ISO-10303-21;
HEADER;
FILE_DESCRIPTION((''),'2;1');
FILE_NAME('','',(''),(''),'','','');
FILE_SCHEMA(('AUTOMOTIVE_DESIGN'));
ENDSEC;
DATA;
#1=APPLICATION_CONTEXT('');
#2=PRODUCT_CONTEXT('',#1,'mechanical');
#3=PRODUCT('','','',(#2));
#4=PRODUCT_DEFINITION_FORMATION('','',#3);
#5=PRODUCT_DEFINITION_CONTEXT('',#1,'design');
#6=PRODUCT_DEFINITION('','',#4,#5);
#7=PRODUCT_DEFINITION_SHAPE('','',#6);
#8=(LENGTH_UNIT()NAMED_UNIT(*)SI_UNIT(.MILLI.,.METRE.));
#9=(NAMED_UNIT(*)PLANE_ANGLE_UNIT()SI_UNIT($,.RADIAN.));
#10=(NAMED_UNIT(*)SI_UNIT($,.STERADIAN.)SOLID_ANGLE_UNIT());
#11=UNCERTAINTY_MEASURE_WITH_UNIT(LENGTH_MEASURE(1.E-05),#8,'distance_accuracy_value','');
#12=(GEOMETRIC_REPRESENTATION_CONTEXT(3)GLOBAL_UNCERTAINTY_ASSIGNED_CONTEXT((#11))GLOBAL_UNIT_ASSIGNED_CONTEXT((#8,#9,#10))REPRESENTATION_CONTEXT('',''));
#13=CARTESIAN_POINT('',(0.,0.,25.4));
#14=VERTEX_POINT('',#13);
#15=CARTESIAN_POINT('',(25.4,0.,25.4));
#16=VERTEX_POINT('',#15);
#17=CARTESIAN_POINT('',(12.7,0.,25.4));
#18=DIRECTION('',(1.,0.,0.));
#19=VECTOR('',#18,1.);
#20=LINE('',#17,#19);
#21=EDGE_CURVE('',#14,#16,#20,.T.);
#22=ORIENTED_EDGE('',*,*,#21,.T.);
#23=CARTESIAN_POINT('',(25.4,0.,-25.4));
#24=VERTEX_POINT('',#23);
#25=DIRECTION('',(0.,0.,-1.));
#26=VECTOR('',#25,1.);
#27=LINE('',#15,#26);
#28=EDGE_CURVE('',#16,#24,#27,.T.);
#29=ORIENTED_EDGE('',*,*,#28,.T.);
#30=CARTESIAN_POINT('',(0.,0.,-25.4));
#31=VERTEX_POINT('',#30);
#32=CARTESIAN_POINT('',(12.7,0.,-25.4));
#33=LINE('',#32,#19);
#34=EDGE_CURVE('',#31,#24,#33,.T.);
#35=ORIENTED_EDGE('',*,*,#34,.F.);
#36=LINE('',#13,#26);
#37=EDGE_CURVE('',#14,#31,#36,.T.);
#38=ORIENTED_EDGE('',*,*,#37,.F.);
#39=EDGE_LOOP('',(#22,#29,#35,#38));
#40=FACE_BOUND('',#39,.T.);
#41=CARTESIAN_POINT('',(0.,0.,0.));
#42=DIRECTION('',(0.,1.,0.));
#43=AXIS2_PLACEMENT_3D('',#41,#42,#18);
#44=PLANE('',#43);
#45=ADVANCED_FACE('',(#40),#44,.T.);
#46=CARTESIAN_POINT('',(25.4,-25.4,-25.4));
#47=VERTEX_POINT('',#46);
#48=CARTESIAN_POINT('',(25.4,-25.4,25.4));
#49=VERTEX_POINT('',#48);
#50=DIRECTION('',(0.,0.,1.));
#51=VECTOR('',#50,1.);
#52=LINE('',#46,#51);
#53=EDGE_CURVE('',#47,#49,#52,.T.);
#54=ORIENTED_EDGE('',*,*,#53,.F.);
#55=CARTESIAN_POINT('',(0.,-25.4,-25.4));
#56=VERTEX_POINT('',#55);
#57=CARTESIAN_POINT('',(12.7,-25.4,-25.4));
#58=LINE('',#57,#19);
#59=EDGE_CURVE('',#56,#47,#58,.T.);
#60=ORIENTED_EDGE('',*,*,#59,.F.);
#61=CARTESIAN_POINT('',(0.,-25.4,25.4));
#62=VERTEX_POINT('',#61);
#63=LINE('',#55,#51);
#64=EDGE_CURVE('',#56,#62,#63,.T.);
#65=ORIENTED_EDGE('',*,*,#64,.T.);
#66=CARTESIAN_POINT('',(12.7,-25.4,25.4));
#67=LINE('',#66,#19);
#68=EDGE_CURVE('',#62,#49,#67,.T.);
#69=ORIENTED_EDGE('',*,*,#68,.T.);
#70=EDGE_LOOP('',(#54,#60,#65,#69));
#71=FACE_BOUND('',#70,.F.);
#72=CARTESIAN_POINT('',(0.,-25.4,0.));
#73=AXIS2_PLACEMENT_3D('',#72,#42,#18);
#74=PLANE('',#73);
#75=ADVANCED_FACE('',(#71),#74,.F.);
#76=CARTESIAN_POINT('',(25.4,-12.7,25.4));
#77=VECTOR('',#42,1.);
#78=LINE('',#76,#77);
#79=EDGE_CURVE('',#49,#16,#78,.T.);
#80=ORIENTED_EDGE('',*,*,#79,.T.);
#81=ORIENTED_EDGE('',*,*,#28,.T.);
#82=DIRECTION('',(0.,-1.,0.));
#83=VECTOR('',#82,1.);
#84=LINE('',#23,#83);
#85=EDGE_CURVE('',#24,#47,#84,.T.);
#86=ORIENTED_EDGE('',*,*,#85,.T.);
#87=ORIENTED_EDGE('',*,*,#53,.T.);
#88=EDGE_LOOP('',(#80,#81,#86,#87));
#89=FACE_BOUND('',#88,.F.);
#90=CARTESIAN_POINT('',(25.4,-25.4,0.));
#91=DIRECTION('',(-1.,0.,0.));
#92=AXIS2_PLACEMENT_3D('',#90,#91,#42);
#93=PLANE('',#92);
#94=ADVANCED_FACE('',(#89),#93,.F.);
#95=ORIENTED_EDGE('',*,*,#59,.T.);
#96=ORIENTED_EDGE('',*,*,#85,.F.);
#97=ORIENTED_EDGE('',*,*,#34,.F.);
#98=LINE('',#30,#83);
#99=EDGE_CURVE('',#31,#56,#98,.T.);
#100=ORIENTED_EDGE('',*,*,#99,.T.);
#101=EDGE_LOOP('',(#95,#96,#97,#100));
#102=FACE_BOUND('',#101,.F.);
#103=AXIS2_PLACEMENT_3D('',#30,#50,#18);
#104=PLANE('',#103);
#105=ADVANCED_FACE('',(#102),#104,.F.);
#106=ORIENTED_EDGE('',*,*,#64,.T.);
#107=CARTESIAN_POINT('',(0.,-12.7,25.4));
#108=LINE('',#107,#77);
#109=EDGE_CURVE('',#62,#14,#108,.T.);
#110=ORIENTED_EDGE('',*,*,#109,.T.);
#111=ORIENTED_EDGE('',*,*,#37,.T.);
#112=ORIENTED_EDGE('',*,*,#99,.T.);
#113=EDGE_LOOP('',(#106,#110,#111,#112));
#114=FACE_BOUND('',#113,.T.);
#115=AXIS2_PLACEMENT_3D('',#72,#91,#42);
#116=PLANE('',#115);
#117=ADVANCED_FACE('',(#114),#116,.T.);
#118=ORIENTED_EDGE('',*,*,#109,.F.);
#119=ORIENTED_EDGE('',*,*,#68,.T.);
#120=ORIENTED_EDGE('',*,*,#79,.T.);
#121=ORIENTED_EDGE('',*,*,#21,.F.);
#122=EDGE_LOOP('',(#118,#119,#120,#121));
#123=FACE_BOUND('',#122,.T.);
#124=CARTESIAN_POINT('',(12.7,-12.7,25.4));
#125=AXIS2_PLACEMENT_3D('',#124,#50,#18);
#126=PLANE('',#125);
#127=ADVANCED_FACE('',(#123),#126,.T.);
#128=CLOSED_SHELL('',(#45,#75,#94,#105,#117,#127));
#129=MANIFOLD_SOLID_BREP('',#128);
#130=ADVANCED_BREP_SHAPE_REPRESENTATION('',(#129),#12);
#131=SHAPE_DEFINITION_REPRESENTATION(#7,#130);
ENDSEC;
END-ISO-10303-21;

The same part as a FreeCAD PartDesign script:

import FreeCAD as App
import Part
import Sketcher
from FreeCAD import Vector
Q = App.Units.Quantity

doc = App.newDocument("Part")
params = doc.addObject("Spreadsheet::Sheet", "Params")
for row, (alias, value) in enumerate([
    ("sketch1_width", "1 in"),
    ("pad1_length", "1 in"),
    ("sketch2_width", "1 in"),
    ("pad2_length", "1 in"),
], start=1):
    params.set(f"A{row}", alias)
    params.set(f"B{row}", "=" + value)
    params.setAlias(f"B{row}", alias)

body = doc.addObject("PartDesign::Body", "Body")

# Sketch on XZ plane
sketch1 = doc.addObject("Sketcher::SketchObject", "Sketch")
body.addObject(sketch1)
sketch1.AttachmentSupport = (doc.XZ_Plane, [""])
sketch1.MapMode = "FlatFace"
sketch1.addGeometry([
    Part.LineSegment(Vector(0, 0, 0), Vector(0, -25.4, 0)),
    Part.LineSegment(Vector(0, -25.4, 0), Vector(25.4, -25.4, 0)),
    Part.LineSegment(Vector(25.4, -25.4, 0), Vector(25.4, 0, 0)),
    Part.LineSegment(Vector(25.4, 0, 0), Vector(0, 0, 0)),
], False)
sketch1.addConstraint([
    Sketcher.Constraint("Coincident", 0, 2, 1, 1),
    Sketcher.Constraint("Coincident", 1, 2, 2, 1),
    Sketcher.Constraint("Coincident", 2, 2, 3, 1),
    Sketcher.Constraint("Coincident", 3, 2, 0, 1),
    Sketcher.Constraint("Vertical", 0),
    Sketcher.Constraint("Horizontal", 1),
    Sketcher.Constraint("Vertical", 2),
    Sketcher.Constraint("Horizontal", 3),
    Sketcher.Constraint("Coincident", 3, 2, -1, 1),
    Sketcher.Constraint("Equal", 3, 0),
    Sketcher.Constraint("DistanceX", 1, 1, 1, 2, Q("1 in")),
])
sketch1.setExpression("Constraints[10]", "Params.sketch1_width")
pad1 = doc.addObject("PartDesign::Pad", "Pad")
body.addObject(pad1)
pad1.Profile = sketch1
pad1.setExpression("Length", "Params.pad1_length")

# Sketch on XY plane
sketch2 = doc.addObject("Sketcher::SketchObject", "Sketch001")
body.addObject(sketch2)
sketch2.AttachmentSupport = (doc.XY_Plane, [""])
sketch2.MapMode = "FlatFace"
sketch2.addGeometry([
    Part.LineSegment(Vector(0, 0, 0), Vector(0, -25.4, 0)),
    Part.LineSegment(Vector(0, -25.4, 0), Vector(25.4, -25.4, 0)),
    Part.LineSegment(Vector(25.4, -25.4, 0), Vector(25.4, 0, 0)),
    Part.LineSegment(Vector(25.4, 0, 0), Vector(0, 0, 0)),
], False)
sketch2.addConstraint([
    Sketcher.Constraint("Coincident", 0, 2, 1, 1),
    Sketcher.Constraint("Coincident", 1, 2, 2, 1),
    Sketcher.Constraint("Coincident", 2, 2, 3, 1),
    Sketcher.Constraint("Coincident", 3, 2, 0, 1),
    Sketcher.Constraint("Vertical", 0),
    Sketcher.Constraint("Horizontal", 1),
    Sketcher.Constraint("Vertical", 2),
    Sketcher.Constraint("Horizontal", 3),
    Sketcher.Constraint("Coincident", 3, 2, -1, 1),
    Sketcher.Constraint("Equal", 3, 0),
    Sketcher.Constraint("DistanceX", 1, 1, 1, 2, Q("1 in")),
])
sketch2.setExpression("Constraints[10]", "Params.sketch2_width")
pad2 = doc.addObject("PartDesign::Pad", "Pad001")
body.addObject(pad2)
pad2.Profile = sketch2
pad2.setExpression("Length", "Params.pad2_length")

doc.recompute()
